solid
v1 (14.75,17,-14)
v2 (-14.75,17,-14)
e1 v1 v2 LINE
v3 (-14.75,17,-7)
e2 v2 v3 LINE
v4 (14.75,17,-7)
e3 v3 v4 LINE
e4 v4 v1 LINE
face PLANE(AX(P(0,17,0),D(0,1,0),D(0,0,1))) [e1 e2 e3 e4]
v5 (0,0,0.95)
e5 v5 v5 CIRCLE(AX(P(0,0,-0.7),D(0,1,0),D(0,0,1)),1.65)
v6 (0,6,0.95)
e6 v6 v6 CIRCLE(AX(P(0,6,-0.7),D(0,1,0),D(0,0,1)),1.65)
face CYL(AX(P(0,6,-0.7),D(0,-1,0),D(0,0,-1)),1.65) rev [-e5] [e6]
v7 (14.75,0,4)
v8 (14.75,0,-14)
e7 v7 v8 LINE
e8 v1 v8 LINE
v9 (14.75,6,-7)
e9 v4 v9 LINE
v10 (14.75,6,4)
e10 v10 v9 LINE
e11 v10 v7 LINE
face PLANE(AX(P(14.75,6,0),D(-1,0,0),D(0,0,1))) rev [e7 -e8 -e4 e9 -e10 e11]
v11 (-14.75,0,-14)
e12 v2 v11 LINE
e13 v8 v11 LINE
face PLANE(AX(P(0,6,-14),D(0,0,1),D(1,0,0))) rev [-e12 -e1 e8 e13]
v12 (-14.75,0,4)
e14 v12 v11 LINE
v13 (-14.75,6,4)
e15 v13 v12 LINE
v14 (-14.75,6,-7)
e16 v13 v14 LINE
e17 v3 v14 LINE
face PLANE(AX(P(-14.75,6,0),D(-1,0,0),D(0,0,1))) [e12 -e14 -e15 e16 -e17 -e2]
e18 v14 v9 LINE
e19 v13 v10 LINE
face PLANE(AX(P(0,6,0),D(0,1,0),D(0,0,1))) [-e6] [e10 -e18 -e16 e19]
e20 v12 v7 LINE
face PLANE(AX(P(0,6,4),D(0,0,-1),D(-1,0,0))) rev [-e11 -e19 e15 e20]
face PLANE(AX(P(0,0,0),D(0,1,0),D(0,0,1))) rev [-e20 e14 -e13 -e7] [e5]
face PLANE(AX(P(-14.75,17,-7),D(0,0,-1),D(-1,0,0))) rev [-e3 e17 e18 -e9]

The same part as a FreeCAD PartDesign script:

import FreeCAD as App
import Part
import Sketcher

V = App.Vector

doc = App.newDocument("Part")
body = doc.addObject("PartDesign::Body", "Body")

# Sketch on XZ plane
sketch1 = body.newObject("Sketcher::SketchObject", "Sketch")
sketch1.AttachmentSupport = (doc.getObject("XZ_Plane"), [""])
sketch1.MapMode = "FlatFace"
sketch1.addGeometry([
    Part.LineSegment(V(-14.8, -14, 0), V(-14.8, 4, 0)),  # 0
    Part.LineSegment(V(-14.8, 4, 0), V(14.8, 4, 0)),  # 1
    Part.LineSegment(V(14.8, 4, 0), V(14.8, -14, 0)),  # 2
    Part.LineSegment(V(14.8, -14, 0), V(-14.8, -14, 0)),  # 3
    Part.Circle(V(0, -0.7, 0), V(0, 0, 1), 1.6),  # 4
], False)
sketch1.addConstraint([
    Sketcher.Constraint("Coincident", 0, 2, 1, 1),
    Sketcher.Constraint("Coincident", 1, 2, 2, 1),
    Sketcher.Constraint("Coincident", 2, 2, 3, 1),
    Sketcher.Constraint("Coincident", 3, 2, 0, 1),
    Sketcher.Constraint("Vertical", 0),
    Sketcher.Constraint("Horizontal", 1),
    Sketcher.Constraint("Vertical", 2),
    Sketcher.Constraint("Horizontal", 3),
    Sketcher.Constraint("PointOnObject", 4, 3, -2),
    Sketcher.Constraint("Diameter", 4, 3.3),
    Sketcher.Constraint("DistanceY", 0, 1, 0, 2, 18.0),
    Sketcher.Constraint("DistanceX", 1, 1, 1, 2, 29.5),
    Sketcher.Constraint("DistanceY", -1, 1, 0, 2, 4.0),
    Sketcher.Constraint("DistanceY", 4, 3, -1, 1, 0.7),
    Sketcher.Constraint("DistanceX", 0, 2, -1, 1, 14.75),
])
pad1 = body.newObject("PartDesign::Pad", "Pad")
pad1.Profile = sketch1
pad1.Length = 6
pad1.Reversed = True

# Sketch on XZ plane
sketch2 = body.newObject("Sketcher::SketchObject", "Sketch001")
sketch2.AttachmentSupport = (doc.getObject("XZ_Plane"), [""])
sketch2.MapMode = "FlatFace"
sketch2.AttachmentOffset = App.Placement(V(0, 0, -6), App.Rotation())
sketch2.addGeometry([
    Part.LineSegment(V(-15, -14, 0), V(-15, -7, 0)),
    Part.LineSegment(V(-15, -7, 0), V(15, -7, 0)),
    Part.LineSegment(V(15, -7, 0), V(15, -14, 0)),
    Part.LineSegment(V(15, -14, 0), V(-15, -14, 0)),
], False)
sketch2.addConstraint([
    Sketcher.Constraint("Coincident", 0, 2, 1, 1),
    Sketcher.Constraint("Coincident", 1, 2, 2, 1),
    Sketcher.Constraint("Coincident", 2, 2, 3, 1),
    Sketcher.Constraint("Coincident", 3, 2, 0, 1),
    Sketcher.Constraint("Vertical", 0),
    Sketcher.Constraint("Horizontal", 1),
    Sketcher.Constraint("Vertical", 2),
    Sketcher.Constraint("Horizontal", 3),
    Sketcher.Constraint("DistanceY", 0, 1, 0, 2, 7.0),
    Sketcher.Constraint("DistanceX", 1, 1, 1, 2, 29.5),
    Sketcher.Constraint("DistanceY", 0, 2, -1, 1, 7.0),
    Sketcher.Constraint("DistanceX", 0, 2, -1, 1, 14.75),
])
pad2 = body.newObject("PartDesign::Pad", "Pad001")
pad2.Profile = sketch2
pad2.Length = 11
pad2.Reversed = True

doc.recompute()
